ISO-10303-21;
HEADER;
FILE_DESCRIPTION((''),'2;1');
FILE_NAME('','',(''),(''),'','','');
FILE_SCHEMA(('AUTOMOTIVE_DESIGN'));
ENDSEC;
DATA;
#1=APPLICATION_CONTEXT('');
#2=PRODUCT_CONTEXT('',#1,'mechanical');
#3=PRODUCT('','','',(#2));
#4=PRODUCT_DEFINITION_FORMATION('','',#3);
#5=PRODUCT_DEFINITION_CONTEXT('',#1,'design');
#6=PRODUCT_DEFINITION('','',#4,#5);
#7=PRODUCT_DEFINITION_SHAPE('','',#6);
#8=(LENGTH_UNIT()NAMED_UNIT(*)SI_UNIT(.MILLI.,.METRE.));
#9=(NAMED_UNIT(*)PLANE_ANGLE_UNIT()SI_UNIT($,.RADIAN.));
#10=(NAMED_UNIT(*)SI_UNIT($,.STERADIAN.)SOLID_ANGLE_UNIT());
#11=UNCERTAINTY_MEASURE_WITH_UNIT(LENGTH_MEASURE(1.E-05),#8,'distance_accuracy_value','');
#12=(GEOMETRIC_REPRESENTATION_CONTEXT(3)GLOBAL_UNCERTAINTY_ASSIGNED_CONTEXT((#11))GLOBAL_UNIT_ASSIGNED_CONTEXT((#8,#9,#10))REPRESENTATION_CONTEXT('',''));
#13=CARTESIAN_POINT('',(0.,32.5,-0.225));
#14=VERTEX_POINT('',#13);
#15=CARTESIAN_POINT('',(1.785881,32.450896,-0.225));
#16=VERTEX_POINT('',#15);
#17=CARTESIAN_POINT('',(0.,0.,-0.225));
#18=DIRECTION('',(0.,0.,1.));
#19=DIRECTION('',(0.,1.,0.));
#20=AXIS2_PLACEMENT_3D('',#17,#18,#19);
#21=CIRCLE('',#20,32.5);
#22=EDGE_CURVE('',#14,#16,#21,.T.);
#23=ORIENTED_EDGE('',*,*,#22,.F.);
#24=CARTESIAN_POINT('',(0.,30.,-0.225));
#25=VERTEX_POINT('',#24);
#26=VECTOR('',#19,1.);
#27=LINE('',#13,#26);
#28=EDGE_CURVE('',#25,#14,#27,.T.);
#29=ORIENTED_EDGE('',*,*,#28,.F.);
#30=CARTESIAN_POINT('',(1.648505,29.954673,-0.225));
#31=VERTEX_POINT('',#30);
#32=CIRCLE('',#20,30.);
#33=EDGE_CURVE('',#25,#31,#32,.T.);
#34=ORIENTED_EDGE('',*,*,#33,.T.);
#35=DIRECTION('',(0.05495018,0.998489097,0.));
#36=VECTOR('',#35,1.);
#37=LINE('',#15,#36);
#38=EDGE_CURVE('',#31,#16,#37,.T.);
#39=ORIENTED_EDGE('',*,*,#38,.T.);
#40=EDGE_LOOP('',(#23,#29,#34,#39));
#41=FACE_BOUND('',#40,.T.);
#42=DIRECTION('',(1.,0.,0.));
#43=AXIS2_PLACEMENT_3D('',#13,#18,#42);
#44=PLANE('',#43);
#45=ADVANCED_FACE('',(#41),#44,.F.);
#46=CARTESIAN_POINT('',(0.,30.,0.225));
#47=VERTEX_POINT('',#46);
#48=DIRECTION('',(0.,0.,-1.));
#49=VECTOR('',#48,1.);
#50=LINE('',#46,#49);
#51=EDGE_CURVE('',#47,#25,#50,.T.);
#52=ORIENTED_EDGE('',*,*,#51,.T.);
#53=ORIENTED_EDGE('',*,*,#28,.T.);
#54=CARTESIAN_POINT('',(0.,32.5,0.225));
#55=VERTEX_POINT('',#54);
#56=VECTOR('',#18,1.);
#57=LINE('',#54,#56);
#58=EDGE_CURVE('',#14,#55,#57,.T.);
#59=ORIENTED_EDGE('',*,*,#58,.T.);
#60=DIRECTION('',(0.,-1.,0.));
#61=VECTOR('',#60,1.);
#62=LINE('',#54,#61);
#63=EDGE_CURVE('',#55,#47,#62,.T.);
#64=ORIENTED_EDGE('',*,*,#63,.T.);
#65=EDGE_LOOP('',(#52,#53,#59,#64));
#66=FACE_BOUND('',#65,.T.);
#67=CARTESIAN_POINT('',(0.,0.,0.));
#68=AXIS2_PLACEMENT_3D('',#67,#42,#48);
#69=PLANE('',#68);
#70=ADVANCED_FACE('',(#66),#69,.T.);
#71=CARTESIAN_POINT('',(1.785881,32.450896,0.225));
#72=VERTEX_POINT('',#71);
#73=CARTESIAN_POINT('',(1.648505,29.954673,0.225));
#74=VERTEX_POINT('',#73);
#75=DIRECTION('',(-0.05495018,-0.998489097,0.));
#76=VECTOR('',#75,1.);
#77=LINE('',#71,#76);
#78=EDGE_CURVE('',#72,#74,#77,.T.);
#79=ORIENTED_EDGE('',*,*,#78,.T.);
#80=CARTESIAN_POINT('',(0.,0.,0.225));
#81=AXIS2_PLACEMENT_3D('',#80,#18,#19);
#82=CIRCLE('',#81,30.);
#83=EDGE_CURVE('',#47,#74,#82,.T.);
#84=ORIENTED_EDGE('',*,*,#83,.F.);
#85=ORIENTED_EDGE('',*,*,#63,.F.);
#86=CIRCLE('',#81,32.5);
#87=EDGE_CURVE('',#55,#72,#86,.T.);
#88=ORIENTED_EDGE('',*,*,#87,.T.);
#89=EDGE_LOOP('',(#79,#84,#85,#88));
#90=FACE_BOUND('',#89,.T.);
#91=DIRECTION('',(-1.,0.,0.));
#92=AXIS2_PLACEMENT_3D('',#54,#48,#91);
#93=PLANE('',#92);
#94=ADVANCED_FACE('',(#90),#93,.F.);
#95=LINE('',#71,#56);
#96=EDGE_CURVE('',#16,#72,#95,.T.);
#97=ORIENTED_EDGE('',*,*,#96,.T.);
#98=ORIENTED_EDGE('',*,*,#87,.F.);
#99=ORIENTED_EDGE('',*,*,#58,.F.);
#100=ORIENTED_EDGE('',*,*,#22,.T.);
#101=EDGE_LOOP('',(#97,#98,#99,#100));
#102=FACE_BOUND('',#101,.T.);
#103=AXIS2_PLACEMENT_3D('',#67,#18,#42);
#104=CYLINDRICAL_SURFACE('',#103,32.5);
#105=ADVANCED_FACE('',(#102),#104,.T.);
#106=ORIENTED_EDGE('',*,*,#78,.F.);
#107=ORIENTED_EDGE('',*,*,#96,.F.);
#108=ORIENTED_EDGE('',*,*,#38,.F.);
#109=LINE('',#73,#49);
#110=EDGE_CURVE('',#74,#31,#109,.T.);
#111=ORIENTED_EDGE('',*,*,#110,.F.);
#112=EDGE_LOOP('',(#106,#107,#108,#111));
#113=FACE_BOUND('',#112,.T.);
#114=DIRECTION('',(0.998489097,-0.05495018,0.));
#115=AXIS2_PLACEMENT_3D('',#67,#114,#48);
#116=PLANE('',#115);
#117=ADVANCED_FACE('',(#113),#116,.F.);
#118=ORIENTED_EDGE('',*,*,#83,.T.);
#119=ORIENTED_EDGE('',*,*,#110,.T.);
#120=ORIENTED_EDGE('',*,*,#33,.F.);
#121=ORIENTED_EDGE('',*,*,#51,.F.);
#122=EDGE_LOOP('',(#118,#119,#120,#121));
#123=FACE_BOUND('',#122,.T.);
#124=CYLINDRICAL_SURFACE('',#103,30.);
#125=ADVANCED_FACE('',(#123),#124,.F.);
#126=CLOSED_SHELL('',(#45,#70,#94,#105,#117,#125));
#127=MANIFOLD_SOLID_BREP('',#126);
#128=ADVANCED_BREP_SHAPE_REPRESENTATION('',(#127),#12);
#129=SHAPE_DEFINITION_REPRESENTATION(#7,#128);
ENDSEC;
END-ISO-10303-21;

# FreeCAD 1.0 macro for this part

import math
import FreeCAD as App
import Part
import Sketcher
from FreeCAD import Vector


def add_polygon(sketch, points):
    """Adds a closed chain of lines whose ends are joined by coincident constraints."""
    first, n = sketch.GeometryCount, len(points)
    for a, b in zip(points, points[1:] + points[:1]):
        sketch.addGeometry(Part.LineSegment(App.Vector(*a, 0), App.Vector(*b, 0)), False)
    for i in range(n):
        sketch.addConstraint(Sketcher.Constraint("Coincident", first + i, 2, first + (i + 1) % n, 1))

doc = App.newDocument("Part")
body = doc.addObject("PartDesign::Body", "Body")

sketch1 = body.newObject("Sketcher::SketchObject", "Sketch")
sketch1.AttachmentSupport = (doc.getObject("YZ_Plane"), [""])
sketch1.MapMode = "FlatFace"
add_polygon(sketch1, [(32.5, 0.23), (30, 0.23), (30, -0.23), (32.5, -0.23)])
sketch1.addConstraint(Sketcher.Constraint("Horizontal", 0))
sketch1.addConstraint(Sketcher.Constraint("Vertical", 1))
sketch1.addConstraint(Sketcher.Constraint("Horizontal", 2))
sketch1.addConstraint(Sketcher.Constraint("Vertical", 3))
sketch1.addConstraint(Sketcher.Constraint("DistanceX", 0, 2, 0, 1, 2.5))
sketch1.addConstraint(Sketcher.Constraint("DistanceX", -1, 1, 0, 2, 30.0))
sketch1.addConstraint(Sketcher.Constraint("DistanceY", 1, 2, 1, 1, 0.45))
sketch1.addConstraint(Sketcher.Constraint("DistanceY", -1, 1, 0, 2, 0.225))

sketch2 = body.newObject("Sketcher::SketchObject", "Sketch001")
sketch2.AttachmentSupport = (doc.getObject("XY_Plane"), [""])
sketch2.MapMode = "FlatFace"
sketch2.addGeometry(Part.ArcOfCircle(Part.Circle(Vector(0, 0, 0), Vector(0, 0, 1), 32.5), math.radians(90), math.radians(447)), False)
sketch2.addConstraint(Sketcher.Constraint("Coincident", 0, 3, -1, 1))
sketch2.addConstraint(Sketcher.Constraint("PointOnObject", 0, 1, -2))
sketch2.addConstraint(Sketcher.Constraint("Radius", 0, 32.5))
sketch2.addConstraint(Sketcher.Constraint("DistanceX", -1, 1, 0, 2, 1.785881))
doc.recompute()

additivepipe = body.newObject("PartDesign::AdditivePipe", "AdditivePipe")
additivepipe.Profile = sketch1
additivepipe.Spine = (sketch2, ["Edge1"])

doc.recompute()
